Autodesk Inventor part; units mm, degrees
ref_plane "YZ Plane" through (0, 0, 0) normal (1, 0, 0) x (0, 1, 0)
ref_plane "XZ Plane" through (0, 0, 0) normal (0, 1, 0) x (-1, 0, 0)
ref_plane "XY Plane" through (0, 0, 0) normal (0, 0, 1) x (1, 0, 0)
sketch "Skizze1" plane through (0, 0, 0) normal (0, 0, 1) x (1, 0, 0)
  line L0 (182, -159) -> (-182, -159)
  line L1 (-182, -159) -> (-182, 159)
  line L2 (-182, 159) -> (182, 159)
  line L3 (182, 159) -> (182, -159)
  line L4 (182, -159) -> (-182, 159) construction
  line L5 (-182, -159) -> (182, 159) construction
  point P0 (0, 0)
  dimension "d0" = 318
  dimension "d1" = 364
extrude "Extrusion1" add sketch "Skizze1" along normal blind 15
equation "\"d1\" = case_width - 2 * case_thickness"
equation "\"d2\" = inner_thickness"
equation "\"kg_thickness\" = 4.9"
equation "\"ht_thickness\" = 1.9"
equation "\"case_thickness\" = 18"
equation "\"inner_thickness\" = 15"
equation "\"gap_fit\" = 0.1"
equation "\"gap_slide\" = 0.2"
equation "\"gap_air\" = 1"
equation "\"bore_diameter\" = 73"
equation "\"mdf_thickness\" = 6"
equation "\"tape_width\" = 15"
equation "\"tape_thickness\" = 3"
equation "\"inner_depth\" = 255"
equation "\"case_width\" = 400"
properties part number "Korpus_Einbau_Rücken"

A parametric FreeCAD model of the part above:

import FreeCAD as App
import Part
import Sketcher

V = App.Vector
Q = App.Units.Quantity

doc = App.newDocument("Part")
body = doc.addObject("PartDesign::Body", "Body")

# Sketch on XY plane
sketch1 = body.newObject("Sketcher::SketchObject", "Sketch")
sketch1.AttachmentSupport = (doc.getObject("XY_Plane"), [""])
sketch1.MapMode = "FlatFace"
sketch1.addGeometry([
    Part.LineSegment(V(-182, -159, 0), V(182, -159, 0)),
    Part.LineSegment(V(182, -159, 0), V(182, 159, 0)),
    Part.LineSegment(V(182, 159, 0), V(-182, 159, 0)),
    Part.LineSegment(V(-182, 159, 0), V(-182, -159, 0)),
], False)
sketch1.addConstraint([
    Sketcher.Constraint("Coincident", 0, 2, 1, 1),
    Sketcher.Constraint("Coincident", 1, 2, 2, 1),
    Sketcher.Constraint("Coincident", 2, 2, 3, 1),
    Sketcher.Constraint("Coincident", 3, 2, 0, 1),
    Sketcher.Constraint("Horizontal", 0),
    Sketcher.Constraint("Vertical", 1),
    Sketcher.Constraint("Horizontal", 2),
    Sketcher.Constraint("Vertical", 3),
    Sketcher.Constraint("Symmetric", 0, 2, 2, 2, -1, 1),
    Sketcher.Constraint("DistanceX", 0, 1, 0, 2, Q("364 mm")),
    Sketcher.Constraint("DistanceY", 1, 1, 1, 2, Q("318 mm")),
])
pad1 = body.newObject("PartDesign::Pad", "Pad")
pad1.Profile = sketch1
pad1.Length = 15

doc.recompute()
